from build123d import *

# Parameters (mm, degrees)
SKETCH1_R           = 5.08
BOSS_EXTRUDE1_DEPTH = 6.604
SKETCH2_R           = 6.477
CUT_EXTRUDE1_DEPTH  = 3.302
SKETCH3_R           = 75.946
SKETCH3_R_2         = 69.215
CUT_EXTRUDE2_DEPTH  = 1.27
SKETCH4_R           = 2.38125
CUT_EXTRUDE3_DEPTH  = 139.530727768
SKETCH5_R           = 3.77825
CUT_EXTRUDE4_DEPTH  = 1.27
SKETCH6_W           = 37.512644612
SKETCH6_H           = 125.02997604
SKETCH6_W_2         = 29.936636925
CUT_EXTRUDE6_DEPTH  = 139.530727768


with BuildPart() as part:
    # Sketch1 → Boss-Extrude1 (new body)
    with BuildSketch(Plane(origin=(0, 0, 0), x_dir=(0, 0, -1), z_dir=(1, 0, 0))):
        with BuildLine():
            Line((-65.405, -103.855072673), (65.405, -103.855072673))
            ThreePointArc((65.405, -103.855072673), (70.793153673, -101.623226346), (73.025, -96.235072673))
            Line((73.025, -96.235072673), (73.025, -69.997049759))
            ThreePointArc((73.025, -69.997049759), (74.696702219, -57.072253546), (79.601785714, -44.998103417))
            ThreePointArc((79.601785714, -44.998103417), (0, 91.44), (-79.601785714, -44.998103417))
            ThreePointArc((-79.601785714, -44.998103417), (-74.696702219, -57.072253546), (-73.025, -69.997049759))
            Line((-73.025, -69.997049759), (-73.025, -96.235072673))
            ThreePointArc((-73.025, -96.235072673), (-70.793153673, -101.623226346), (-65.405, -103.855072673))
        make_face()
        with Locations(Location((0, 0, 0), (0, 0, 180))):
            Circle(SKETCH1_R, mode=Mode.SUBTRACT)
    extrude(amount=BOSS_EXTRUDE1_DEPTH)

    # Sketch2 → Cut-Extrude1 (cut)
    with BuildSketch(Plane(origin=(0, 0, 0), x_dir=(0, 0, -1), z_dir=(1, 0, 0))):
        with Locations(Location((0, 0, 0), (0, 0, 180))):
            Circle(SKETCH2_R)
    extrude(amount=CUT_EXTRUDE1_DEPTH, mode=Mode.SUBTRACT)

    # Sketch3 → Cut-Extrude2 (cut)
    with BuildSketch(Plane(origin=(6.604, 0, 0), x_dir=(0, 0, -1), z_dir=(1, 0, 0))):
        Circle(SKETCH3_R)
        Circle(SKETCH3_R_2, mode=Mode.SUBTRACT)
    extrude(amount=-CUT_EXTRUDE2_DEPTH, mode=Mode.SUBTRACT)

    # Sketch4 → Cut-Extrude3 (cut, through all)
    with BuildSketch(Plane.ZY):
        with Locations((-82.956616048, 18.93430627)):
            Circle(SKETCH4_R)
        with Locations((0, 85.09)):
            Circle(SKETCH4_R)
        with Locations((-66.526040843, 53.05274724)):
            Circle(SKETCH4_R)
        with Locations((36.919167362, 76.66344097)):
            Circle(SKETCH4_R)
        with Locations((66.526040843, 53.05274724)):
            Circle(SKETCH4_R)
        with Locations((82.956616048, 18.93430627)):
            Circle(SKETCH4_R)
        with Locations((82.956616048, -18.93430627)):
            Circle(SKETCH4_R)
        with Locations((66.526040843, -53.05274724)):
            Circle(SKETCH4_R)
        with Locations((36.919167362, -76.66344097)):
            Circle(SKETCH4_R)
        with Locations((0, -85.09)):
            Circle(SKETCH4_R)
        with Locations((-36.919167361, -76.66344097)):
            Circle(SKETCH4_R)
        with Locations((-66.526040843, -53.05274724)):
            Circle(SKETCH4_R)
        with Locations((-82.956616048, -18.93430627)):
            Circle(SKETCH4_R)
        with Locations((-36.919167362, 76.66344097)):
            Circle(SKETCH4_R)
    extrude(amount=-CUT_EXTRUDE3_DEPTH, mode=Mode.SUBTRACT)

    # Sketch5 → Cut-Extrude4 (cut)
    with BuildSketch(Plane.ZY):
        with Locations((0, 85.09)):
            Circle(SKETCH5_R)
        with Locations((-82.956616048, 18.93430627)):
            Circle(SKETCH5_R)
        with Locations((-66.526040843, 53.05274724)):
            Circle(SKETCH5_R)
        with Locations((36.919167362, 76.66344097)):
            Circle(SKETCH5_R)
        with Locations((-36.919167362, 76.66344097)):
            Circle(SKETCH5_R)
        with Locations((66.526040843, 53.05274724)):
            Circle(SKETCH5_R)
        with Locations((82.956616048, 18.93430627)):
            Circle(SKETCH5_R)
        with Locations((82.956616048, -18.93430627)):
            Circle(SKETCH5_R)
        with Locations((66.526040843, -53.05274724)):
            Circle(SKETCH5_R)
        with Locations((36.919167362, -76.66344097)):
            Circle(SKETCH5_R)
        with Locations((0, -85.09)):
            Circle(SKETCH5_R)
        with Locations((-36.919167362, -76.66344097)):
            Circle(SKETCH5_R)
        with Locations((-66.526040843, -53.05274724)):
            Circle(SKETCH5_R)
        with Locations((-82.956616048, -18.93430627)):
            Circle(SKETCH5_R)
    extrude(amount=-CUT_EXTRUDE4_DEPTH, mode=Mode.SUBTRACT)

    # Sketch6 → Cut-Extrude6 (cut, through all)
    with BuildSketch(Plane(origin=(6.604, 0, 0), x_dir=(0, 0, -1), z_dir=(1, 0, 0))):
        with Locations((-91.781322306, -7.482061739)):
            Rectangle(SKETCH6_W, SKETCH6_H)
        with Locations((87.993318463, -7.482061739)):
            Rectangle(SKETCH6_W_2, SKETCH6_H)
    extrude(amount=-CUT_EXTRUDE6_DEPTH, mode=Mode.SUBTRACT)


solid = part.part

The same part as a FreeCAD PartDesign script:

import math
import FreeCAD as App
import Part
import Sketcher
from FreeCAD import Vector
Q = App.Units.Quantity

doc = App.newDocument("Part")
params = doc.addObject("Spreadsheet::Sheet", "Params")
for row, (alias, value) in enumerate([
    ("sketch1_radius", "2 in"),
    ("sketch1_diameter", "0.4 in"),
    ("sketch1_radius2", "0.3 in"),
    ("sketch1_radius3", "3.6 in"),
    ("sketch1_height", "5.15 in"),
    ("pad1_length", "0.26 in"),
    ("sketch2_diameter", "0.51 in"),
    ("pocket1_length", "0.13 in"),
    ("sketch3_diameter", "5.98 in"),
    ("sketch3_diameter2", "5.45 in"),
    ("pocket2_length", "0.05 in"),
    ("sketch4_diameter", "0.1875 in"),
    ("pocket4_length", "0.05 in"),
], start=1):
    params.set(f"A{row}", alias)
    params.set(f"B{row}", "=" + value)
    params.setAlias(f"B{row}", alias)

body = doc.addObject("PartDesign::Body", "Body")

# Sketch on YZ plane
sketch1 = body.newObject("Sketcher::SketchObject", "Sketch")
sketch1.AttachmentSupport = (doc.getObject("YZ_Plane"), [""])
sketch1.MapMode = "FlatFace"
sketch1.addGeometry([
    Part.LineSegment(Vector(-103.855073, 65.405, 0), Vector(-103.855073, -65.405, 0)),  # 0
    Part.ArcOfCircle(Part.Circle(Vector(-96.235073, -65.405, 0), Vector(0, 0, 1), 7.62), math.radians(180), math.radians(270)),  # 1
    Part.LineSegment(Vector(-96.235073, -73.025, 0), Vector(-69.99705, -73.025, 0)),  # 2
    Part.ArcOfCircle(Part.Circle(Vector(-69.99705, -123.825, 0), Vector(0, 0, 1), 50.8), math.radians(60.520953), math.radians(90)),  # 3
    Part.ArcOfCircle(Part.Circle(Vector(0, 0, 0), Vector(0, 0, 1), 91.44), math.radians(-119.479047), math.radians(119.479047)),  # 4
    Part.ArcOfCircle(Part.Circle(Vector(-69.99705, 123.825, 0), Vector(0, 0, 1), 50.8), math.radians(-90), math.radians(-60.520953)),  # 5
    Part.LineSegment(Vector(-69.99705, 73.025, 0), Vector(-96.235073, 73.025, 0)),  # 6
    Part.ArcOfCircle(Part.Circle(Vector(-96.235073, 65.405, 0), Vector(0, 0, 1), 7.62), math.radians(90), math.radians(180)),  # 7
    Part.Circle(Vector(0, 0, 0), Vector(0, 0, 1), 5.08),  # 8
], False)
sketch1.addConstraint([
    Sketcher.Constraint("Tangent", 0, 2, 1, 1),
    Sketcher.Constraint("Tangent", 1, 2, 2, 1),
    Sketcher.Constraint("Tangent", 2, 2, 3, 2),
    Sketcher.Constraint("Tangent", 3, 1, 4, 1),
    Sketcher.Constraint("Tangent", 4, 2, 5, 2),
    Sketcher.Constraint("Tangent", 5, 1, 6, 1),
    Sketcher.Constraint("Tangent", 6, 2, 7, 1),
    Sketcher.Constraint("Tangent", 7, 2, 0, 1),
    Sketcher.Constraint("Vertical", 0),
    Sketcher.Constraint("Horizontal", 2),
    Sketcher.Constraint("Horizontal", 6),
    Sketcher.Constraint("Coincident", 4, 3, -1, 1),
    Sketcher.Constraint("Coincident", 8, 3, -1, 1),
    Sketcher.Constraint("Equal", 3, 5),
    Sketcher.Constraint("Equal", 1, 7),
    Sketcher.Constraint("Vertical", 3, 3, 5, 3),
    Sketcher.Constraint("Radius", 3, Q("2 in")),
    Sketcher.Constraint("Diameter", 8, Q("0.4 in")),
    Sketcher.Constraint("Radius", 1, Q("0.3 in")),
    Sketcher.Constraint("Radius", 4, Q("3.6 in")),
    Sketcher.Constraint("DistanceY", 0, 2, 0, 1, Q("5.15 in")),
    Sketcher.Constraint("DistanceX", 2, 1, 2, 2, 26.238023),
])
sketch1.setExpression("Constraints[16]", "Params.sketch1_radius")
sketch1.setExpression("Constraints[17]", "Params.sketch1_diameter")
sketch1.setExpression("Constraints[18]", "Params.sketch1_radius2")
sketch1.setExpression("Constraints[19]", "Params.sketch1_radius3")
sketch1.setExpression("Constraints[20]", "Params.sketch1_height")
pad1 = body.newObject("PartDesign::Pad", "Pad")
pad1.Profile = sketch1
pad1.setExpression("Length", "Params.pad1_length")

# Sketch on YZ plane
sketch2 = body.newObject("Sketcher::SketchObject", "Sketch001")
sketch2.AttachmentSupport = (doc.getObject("YZ_Plane"), [""])
sketch2.MapMode = "FlatFace"
sketch2.addGeometry(Part.Circle(Vector(0, 0, 0), Vector(0, 0, 1), 6.477), False)
sketch2.addConstraint([
    Sketcher.Constraint("Coincident", 0, 3, -1, 1),
    Sketcher.Constraint("Diameter", 0, Q("0.51 in")),
])
sketch2.setExpression("Constraints[1]", "Params.sketch2_diameter")
pocket1 = body.newObject("PartDesign::Pocket", "Pocket")
pocket1.Profile = sketch2
pocket1.setExpression("Length", "Params.pocket1_length")
pocket1.Reversed = True

# Sketch on YZ plane
sketch3 = body.newObject("Sketcher::SketchObject", "Sketch002")
sketch3.AttachmentSupport = (doc.getObject("YZ_Plane"), [""])
sketch3.MapMode = "FlatFace"
sketch3.AttachmentOffset = App.Placement(Vector(0, 0, 0.26 * 25.4), App.Rotation())
sketch3.addGeometry([
    Part.Circle(Vector(0, 0, 0), Vector(0, 0, 1), 75.946),
    Part.Circle(Vector(0, 0, 0), Vector(0, 0, 1), 69.215),
], False)
sketch3.addConstraint([
    Sketcher.Constraint("Coincident", 0, 3, -1, 1),
    Sketcher.Constraint("Coincident", 1, 3, -1, 1),
    Sketcher.Constraint("Diameter", 0, Q("5.98 in")),
    Sketcher.Constraint("Diameter", 1, Q("5.45 in")),
])
sketch3.setExpression("Constraints[2]", "Params.sketch3_diameter")
sketch3.setExpression("Constraints[3]", "Params.sketch3_diameter2")
pocket2 = body.newObject("PartDesign::Pocket", "Pocket001")
pocket2.Profile = sketch3
pocket2.setExpression("Length", "Params.pocket2_length")

# Sketch on YZ plane
sketch4 = body.newObject("Sketcher::SketchObject", "Sketch003")
sketch4.AttachmentSupport = (doc.getObject("YZ_Plane"), [""])
sketch4.MapMode = "FlatFace"
sketch4.addGeometry([
    Part.Circle(Vector(18.934306, -82.956616, 0), Vector(0, 0, 1), 2.38125),  # 0
    Part.Circle(Vector(85.09, 0, 0), Vector(0, 0, 1), 2.38125),  # 1
    Part.Circle(Vector(53.052747, -66.526041, 0), Vector(0, 0, 1), 2.38125),  # 2
    Part.Circle(Vector(76.663441, 36.919167, 0), Vector(0, 0, 1), 2.38125),  # 3
    Part.Circle(Vector(53.052747, 66.526041, 0), Vector(0, 0, 1), 2.38125),  # 4
    Part.Circle(Vector(18.934306, 82.956616, 0), Vector(0, 0, 1), 2.38125),  # 5
    Part.Circle(Vector(-18.934306, 82.956616, 0), Vector(0, 0, 1), 2.38125),  # 6
    Part.Circle(Vector(-53.052747, 66.526041, 0), Vector(0, 0, 1), 2.38125),  # 7
    Part.Circle(Vector(-76.663441, 36.919167, 0), Vector(0, 0, 1), 2.38125),  # 8
    Part.Circle(Vector(-85.09, 0, 0), Vector(0, 0, 1), 2.38125),  # 9
    Part.Circle(Vector(-76.663441, -36.919167, 0), Vector(0, 0, 1), 2.38125),  # 10
    Part.Circle(Vector(-53.052747, -66.526041, 0), Vector(0, 0, 1), 2.38125),  # 11
    Part.Circle(Vector(-18.934306, -82.956616, 0), Vector(0, 0, 1), 2.38125),  # 12
    Part.Circle(Vector(76.663441, -36.919167, 0), Vector(0, 0, 1), 2.38125),  # 13
], False)
sketch4.addConstraint([
    Sketcher.Constraint("Equal", 0, 1),
    Sketcher.Constraint("Equal", 1, 2),
    Sketcher.Constraint("Equal", 2, 3),
    Sketcher.Constraint("Equal", 3, 4),
    Sketcher.Constraint("Equal", 4, 5),
    Sketcher.Constraint("Equal", 5, 6),
    Sketcher.Constraint("Equal", 6, 7),
    Sketcher.Constraint("Equal", 7, 8),
    Sketcher.Constraint("Equal", 8, 9),
    Sketcher.Constraint("Equal", 9, 10),
    Sketcher.Constraint("Equal", 10, 11),
    Sketcher.Constraint("Equal", 11, 12),
    Sketcher.Constraint("Equal", 12, 13),
    Sketcher.Constraint("Symmetric", 0, 3, 6, 3, -1, 1),
    Sketcher.Constraint("Symmetric", 2, 3, 7, 3, -1, 1),
    Sketcher.Constraint("Symmetric", 1, 3, 9, 3, -1, 1),
    Sketcher.Constraint("Symmetric", 3, 3, 10, 3, -1, 1),
    Sketcher.Constraint("Symmetric", 4, 3, 11, 3, -1, 1),
    Sketcher.Constraint("Symmetric", 5, 3, 12, 3, -1, 1),
    Sketcher.Constraint("Symmetric", 8, 3, 13, 3, -1, 1),
    Sketcher.Constraint("Symmetric", 5, 3, 6, 3, -2),
    Sketcher.Constraint("Symmetric", 4, 3, 7, 3, -2),
    Sketcher.Constraint("Symmetric", 3, 3, 8, 3, -2),
    Sketcher.Constraint("PointOnObject", 1, 3, -1),
    Sketcher.Constraint("Diameter", 0, Q("0.1875 in")),
    Sketcher.Constraint("DistanceX", -1, 1, 1, 3, Q("3.35 in")),
    Sketcher.Constraint("DistanceY", 2, 3, -1, 1, 66.526041),
    Sketcher.Constraint("DistanceX", -1, 1, 3, 3, 76.663441),
    Sketcher.Constraint("DistanceX", 0, 3, 2, 3, 34.118441),
    Sketcher.Constraint("DistanceY", 2, 3, 3, 3, 103.445208),
    Sketcher.Constraint("DistanceY", 3, 3, 5, 3, 46.037449),
    Sketcher.Constraint("DistanceX", 7, 3, 3, 3, 129.716188),
])
sketch4.setExpression("Constraints[24]", "Params.sketch4_diameter")
pocket3 = body.newObject("PartDesign::Pocket", "Pocket002")
pocket3.Profile = sketch4
pocket3.Type = "ThroughAll"
pocket3.Reversed = True

# Sketch on YZ plane
sketch5 = body.newObject("Sketcher::SketchObject", "Sketch004")
sketch5.AttachmentSupport = (doc.getObject("YZ_Plane"), [""])
sketch5.MapMode = "FlatFace"
sketch5.addGeometry([
    Part.Circle(Vector(85.09, 0, 0), Vector(0, 0, 1), 3.77825),  # 0
    Part.Circle(Vector(18.934306, -82.956616, 0), Vector(0, 0, 1), 3.77825),  # 1
    Part.Circle(Vector(53.052747, -66.526041, 0), Vector(0, 0, 1), 3.77825),  # 2
    Part.Circle(Vector(76.663441, 36.919167, 0), Vector(0, 0, 1), 3.77825),  # 3
    Part.Circle(Vector(76.663441, -36.919167, 0), Vector(0, 0, 1), 3.77825),  # 4
    Part.Circle(Vector(53.052747, 66.526041, 0), Vector(0, 0, 1), 3.77825),  # 5
    Part.Circle(Vector(18.934306, 82.956616, 0), Vector(0, 0, 1), 3.77825),  # 6
    Part.Circle(Vector(-18.934306, 82.956616, 0), Vector(0, 0, 1), 3.77825),  # 7
    Part.Circle(Vector(-53.052747, 66.526041, 0), Vector(0, 0, 1), 3.77825),  # 8
    Part.Circle(Vector(-76.663441, 36.919167, 0), Vector(0, 0, 1), 3.77825),  # 9
    Part.Circle(Vector(-85.09, 0, 0), Vector(0, 0, 1), 3.77825),  # 10
    Part.Circle(Vector(-76.663441, -36.919167, 0), Vector(0, 0, 1), 3.77825),  # 11
    Part.Circle(Vector(-53.052747, -66.526041, 0), Vector(0, 0, 1), 3.77825),  # 12
    Part.Circle(Vector(-18.934306, -82.956616, 0), Vector(0, 0, 1), 3.77825),  # 13
], False)
sketch5.addConstraint([
    Sketcher.Constraint("Equal", 0, 1),
    Sketcher.Constraint("Equal", 1, 2),
    Sketcher.Constraint("Equal", 2, 3),
    Sketcher.Constraint("Equal", 3, 4),
    Sketcher.Constraint("Equal", 4, 5),
    Sketcher.Constraint("Equal", 5, 6),
    Sketcher.Constraint("Equal", 6, 7),
    Sketcher.Constraint("Equal", 7, 8),
    Sketcher.Constraint("Equal", 8, 9),
    Sketcher.Constraint("Equal", 9, 10),
    Sketcher.Constraint("Equal", 10, 11),
    Sketcher.Constraint("Equal", 11, 12),
    Sketcher.Constraint("Equal", 12, 13),
    Sketcher.Constraint("Symmetric", 1, 3, 7, 3, -1, 1),
    Sketcher.Constraint("Symmetric", 2, 3, 8, 3, -1, 1),
    Sketcher.Constraint("Symmetric", 4, 3, 9, 3, -1, 1),
    Sketcher.Constraint("Symmetric", 0, 3, 10, 3, -1, 1),
    Sketcher.Constraint("Symmetric", 3, 3, 11, 3, -1, 1),
    Sketcher.Constraint("Symmetric", 5, 3, 12, 3, -1, 1),
    Sketcher.Constraint("Symmetric", 6, 3, 13, 3, -1, 1),
    Sketcher.Constraint("Symmetric", 6, 3, 7, 3, -2),
    Sketcher.Constraint("Symmetric", 5, 3, 8, 3, -2),
    Sketcher.Constraint("Symmetric", 3, 3, 9, 3, -2),
    Sketcher.Constraint("PointOnObject", 0, 3, -1),
    Sketcher.Constraint("Diameter", 0, Q("0.2975 in")),
    Sketcher.Constraint("DistanceX", -1, 1, 0, 3, Q("3.35 in")),
    Sketcher.Constraint("DistanceY", 2, 3, -1, 1, 66.526041),
    Sketcher.Constraint("DistanceX", -1, 1, 3, 3, 76.663441),
    Sketcher.Constraint("DistanceX", 1, 3, 2, 3, 34.118441),
    Sketcher.Constraint("DistanceY", 2, 3, 3, 3, 103.445208),
    Sketcher.Constraint("DistanceY", 1, 3, 4, 3, 46.037449),
    Sketcher.Constraint("DistanceX", 8, 3, 3, 3, 129.716188),
])
pocket4 = body.newObject("PartDesign::Pocket", "Pocket003")
pocket4.Profile = sketch5
pocket4.setExpression("Length", "Params.pocket4_length")
pocket4.Reversed = True

# Sketch on YZ plane
sketch6 = body.newObject("Sketcher::SketchObject", "Sketch005")
sketch6.AttachmentSupport = (doc.getObject("YZ_Plane"), [""])
sketch6.MapMode = "FlatFace"
sketch6.AttachmentOffset = App.Placement(Vector(0, 0, 0.26 * 25.4), App.Rotation())
sketch6.addGeometry([
    Part.LineSegment(Vector(55.032926, 110.537645, 0), Vector(-69.99705, 110.537645, 0)),  # 0
    Part.LineSegment(Vector(-69.99705, 110.537645, 0), Vector(-69.99705, 73.025, 0)),  # 1
    Part.LineSegment(Vector(-69.99705, 73.025, 0), Vector(55.032926, 73.025, 0)),  # 2
    Part.LineSegment(Vector(55.032926, 73.025, 0), Vector(55.032926, 110.537645, 0)),  # 3
    Part.LineSegment(Vector(55.032926, -73.025, 0), Vector(-69.99705, -73.025, 0)),  # 4
    Part.LineSegment(Vector(-69.99705, -73.025, 0), Vector(-69.99705, -102.961637, 0)),  # 5
    Part.LineSegment(Vector(-69.99705, -102.961637, 0), Vector(55.032926, -102.961637, 0)),  # 6
    Part.LineSegment(Vector(55.032926, -102.961637, 0), Vector(55.032926, -73.025, 0)),  # 7
], False)
sketch6.addConstraint([
    Sketcher.Constraint("Coincident", 0, 2, 1, 1),
    Sketcher.Constraint("Coincident", 1, 2, 2, 1),
    Sketcher.Constraint("Coincident", 2, 2, 3, 1),
    Sketcher.Constraint("Coincident", 3, 2, 0, 1),
    Sketcher.Constraint("Coincident", 4, 2, 5, 1),
    Sketcher.Constraint("Coincident", 5, 2, 6, 1),
    Sketcher.Constraint("Coincident", 6, 2, 7, 1),
    Sketcher.Constraint("Coincident", 7, 2, 4, 1),
    Sketcher.Constraint("Horizontal", 0),
    Sketcher.Constraint("Vertical", 1),
    Sketcher.Constraint("Horizontal", 2),
    Sketcher.Constraint("Vertical", 3),
    Sketcher.Constraint("Horizontal", 4),
    Sketcher.Constraint("Vertical", 5),
    Sketcher.Constraint("Horizontal", 6),
    Sketcher.Constraint("Vertical", 7),
    Sketcher.Constraint("Symmetric", 1, 2, 4, 2, -1),
    Sketcher.Constraint("Vertical", 3, 2, 6, 2),
    Sketcher.Constraint("DistanceY", 4, 2, 1, 2, Q("5.75 in")),
    Sketcher.Constraint("DistanceX", 0, 2, 0, 1, 125.029976),
    Sketcher.Constraint("DistanceY", 1, 2, 1, 1, 37.512645),
    Sketcher.Constraint("DistanceY", 5, 2, 5, 1, 29.936637),
    Sketcher.Constraint("DistanceX", 0, 2, -1, 1, 69.99705),
])
pocket5 = body.newObject("PartDesign::Pocket", "Pocket004")
pocket5.Profile = sketch6
pocket5.Type = "ThroughAll"

doc.recompute()
